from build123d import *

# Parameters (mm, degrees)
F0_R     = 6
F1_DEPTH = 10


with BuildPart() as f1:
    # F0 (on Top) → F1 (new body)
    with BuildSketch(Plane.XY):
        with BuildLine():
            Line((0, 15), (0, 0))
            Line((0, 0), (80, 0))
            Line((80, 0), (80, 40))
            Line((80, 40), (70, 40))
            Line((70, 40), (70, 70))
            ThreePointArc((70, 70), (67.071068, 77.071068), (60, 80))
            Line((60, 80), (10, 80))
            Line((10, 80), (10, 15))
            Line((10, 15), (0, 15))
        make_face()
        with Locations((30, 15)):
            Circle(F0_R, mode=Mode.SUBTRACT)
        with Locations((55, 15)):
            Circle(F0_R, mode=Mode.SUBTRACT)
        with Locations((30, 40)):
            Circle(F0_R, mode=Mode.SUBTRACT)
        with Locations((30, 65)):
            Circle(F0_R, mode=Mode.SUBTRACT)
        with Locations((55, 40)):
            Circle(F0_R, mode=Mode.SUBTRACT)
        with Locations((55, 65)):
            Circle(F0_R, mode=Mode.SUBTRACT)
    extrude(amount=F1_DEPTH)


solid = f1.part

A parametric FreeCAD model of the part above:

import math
import FreeCAD as App
import Part
import Sketcher
from FreeCAD import Vector

doc = App.newDocument("Part")
body = doc.addObject("PartDesign::Body", "Body")

sketch1 = body.newObject("Sketcher::SketchObject", "Sketch")
sketch1.AttachmentSupport = (doc.getObject("XY_Plane"), [""])
sketch1.MapMode = "FlatFace"
sketch1.addGeometry(Part.LineSegment(Vector(0, 15, 0), Vector(0, 0, 0)), False)
sketch1.addGeometry(Part.LineSegment(Vector(0, 0, 0), Vector(80, 0, 0)), False)
sketch1.addGeometry(Part.LineSegment(Vector(80, 0, 0), Vector(80, 40, 0)), False)
sketch1.addGeometry(Part.LineSegment(Vector(80, 40, 0), Vector(70, 40, 0)), False)
sketch1.addGeometry(Part.LineSegment(Vector(70, 40, 0), Vector(70, 70, 0)), False)
sketch1.addGeometry(Part.ArcOfCircle(Part.Circle(Vector(60, 70, 0), Vector(0, 0, 1), 10), math.radians(0), math.radians(90)), False)
sketch1.addGeometry(Part.LineSegment(Vector(60, 80, 0), Vector(10, 80, 0)), False)
sketch1.addGeometry(Part.LineSegment(Vector(10, 80, 0), Vector(10, 15, 0)), False)
sketch1.addGeometry(Part.LineSegment(Vector(10, 15, 0), Vector(0, 15, 0)), False)
sketch1.addGeometry(Part.Circle(Vector(30, 15, 0), Vector(0, 0, 1), 6), False)
sketch1.addGeometry(Part.Circle(Vector(55, 15, 0), Vector(0, 0, 1), 6), False)
sketch1.addGeometry(Part.Circle(Vector(30, 40, 0), Vector(0, 0, 1), 6), False)
sketch1.addGeometry(Part.Circle(Vector(30, 65, 0), Vector(0, 0, 1), 6), False)
sketch1.addGeometry(Part.Circle(Vector(55, 40, 0), Vector(0, 0, 1), 6), False)
sketch1.addGeometry(Part.Circle(Vector(55, 65, 0), Vector(0, 0, 1), 6), False)
sketch1.addConstraint(Sketcher.Constraint("Coincident", 0, 2, 1, 1))
sketch1.addConstraint(Sketcher.Constraint("Coincident", 1, 2, 2, 1))
sketch1.addConstraint(Sketcher.Constraint("Coincident", 2, 2, 3, 1))
sketch1.addConstraint(Sketcher.Constraint("Coincident", 3, 2, 4, 1))
sketch1.addConstraint(Sketcher.Constraint("Tangent", 4, 2, 5, 1))
sketch1.addConstraint(Sketcher.Constraint("Tangent", 5, 2, 6, 1))
sketch1.addConstraint(Sketcher.Constraint("Coincident", 6, 2, 7, 1))
sketch1.addConstraint(Sketcher.Constraint("Coincident", 7, 2, 8, 1))
sketch1.addConstraint(Sketcher.Constraint("Coincident", 8, 2, 0, 1))
sketch1.addConstraint(Sketcher.Constraint("Vertical", 0))
sketch1.addConstraint(Sketcher.Constraint("Horizontal", 1))
sketch1.addConstraint(Sketcher.Constraint("Vertical", 2))
sketch1.addConstraint(Sketcher.Constraint("Horizontal", 3))
sketch1.addConstraint(Sketcher.Constraint("Vertical", 4))
sketch1.addConstraint(Sketcher.Constraint("Horizontal", 6))
sketch1.addConstraint(Sketcher.Constraint("Vertical", 7))
sketch1.addConstraint(Sketcher.Constraint("Horizontal", 8))
sketch1.addConstraint(Sketcher.Constraint("Coincident", 0, 2, -1, 1))
sketch1.addConstraint(Sketcher.Constraint("Equal", 9, 10))
sketch1.addConstraint(Sketcher.Constraint("Equal", 10, 11))
sketch1.addConstraint(Sketcher.Constraint("Equal", 11, 12))
sketch1.addConstraint(Sketcher.Constraint("Equal", 12, 13))
sketch1.addConstraint(Sketcher.Constraint("Equal", 13, 14))
sketch1.addConstraint(Sketcher.Constraint("Horizontal", 9, 3, 10, 3))
sketch1.addConstraint(Sketcher.Constraint("Horizontal", 11, 3, 13, 3))
sketch1.addConstraint(Sketcher.Constraint("Horizontal", 12, 3, 14, 3))
sketch1.addConstraint(Sketcher.Constraint("Horizontal", 13, 3, 2, 2))
sketch1.addConstraint(Sketcher.Constraint("Horizontal", 10, 3, 7, 2))
sketch1.addConstraint(Sketcher.Constraint("Vertical", 9, 3, 11, 3))
sketch1.addConstraint(Sketcher.Constraint("Vertical", 11, 3, 12, 3))
sketch1.addConstraint(Sketcher.Constraint("Vertical", 10, 3, 13, 3))
sketch1.addConstraint(Sketcher.Constraint("Vertical", 13, 3, 14, 3))
sketch1.addConstraint(Sketcher.Constraint("Equal", 3, 8))
sketch1.addConstraint(Sketcher.Constraint("Diameter", 9, 12.0))
sketch1.addConstraint(Sketcher.Constraint("Radius", 5, 9.999999))
sketch1.addConstraint(Sketcher.Constraint("DistanceX", 1, 1, 1, 2, 80.0))
sketch1.addConstraint(Sketcher.Constraint("DistanceX", 3, 2, 3, 1, 10.0))
sketch1.addConstraint(Sketcher.Constraint("DistanceY", 0, 2, 0, 1, 15.0))
sketch1.addConstraint(Sketcher.Constraint("DistanceY", 2, 1, 2, 2, 40.0))
sketch1.addConstraint(Sketcher.Constraint("DistanceY", 4, 1, 4, 2, 30.0))
sketch1.addConstraint(Sketcher.Constraint("DistanceX", -1, 1, 9, 3, 30.0))
sketch1.addConstraint(Sketcher.Constraint("DistanceX", -1, 1, 10, 3, 55.0))
sketch1.addConstraint(Sketcher.Constraint("DistanceY", -1, 1, 12, 3, 65.0))
pad1 = body.newObject("PartDesign::Pad", "Pad")
pad1.Profile = sketch1
pad1.Length = 10

doc.recompute()
